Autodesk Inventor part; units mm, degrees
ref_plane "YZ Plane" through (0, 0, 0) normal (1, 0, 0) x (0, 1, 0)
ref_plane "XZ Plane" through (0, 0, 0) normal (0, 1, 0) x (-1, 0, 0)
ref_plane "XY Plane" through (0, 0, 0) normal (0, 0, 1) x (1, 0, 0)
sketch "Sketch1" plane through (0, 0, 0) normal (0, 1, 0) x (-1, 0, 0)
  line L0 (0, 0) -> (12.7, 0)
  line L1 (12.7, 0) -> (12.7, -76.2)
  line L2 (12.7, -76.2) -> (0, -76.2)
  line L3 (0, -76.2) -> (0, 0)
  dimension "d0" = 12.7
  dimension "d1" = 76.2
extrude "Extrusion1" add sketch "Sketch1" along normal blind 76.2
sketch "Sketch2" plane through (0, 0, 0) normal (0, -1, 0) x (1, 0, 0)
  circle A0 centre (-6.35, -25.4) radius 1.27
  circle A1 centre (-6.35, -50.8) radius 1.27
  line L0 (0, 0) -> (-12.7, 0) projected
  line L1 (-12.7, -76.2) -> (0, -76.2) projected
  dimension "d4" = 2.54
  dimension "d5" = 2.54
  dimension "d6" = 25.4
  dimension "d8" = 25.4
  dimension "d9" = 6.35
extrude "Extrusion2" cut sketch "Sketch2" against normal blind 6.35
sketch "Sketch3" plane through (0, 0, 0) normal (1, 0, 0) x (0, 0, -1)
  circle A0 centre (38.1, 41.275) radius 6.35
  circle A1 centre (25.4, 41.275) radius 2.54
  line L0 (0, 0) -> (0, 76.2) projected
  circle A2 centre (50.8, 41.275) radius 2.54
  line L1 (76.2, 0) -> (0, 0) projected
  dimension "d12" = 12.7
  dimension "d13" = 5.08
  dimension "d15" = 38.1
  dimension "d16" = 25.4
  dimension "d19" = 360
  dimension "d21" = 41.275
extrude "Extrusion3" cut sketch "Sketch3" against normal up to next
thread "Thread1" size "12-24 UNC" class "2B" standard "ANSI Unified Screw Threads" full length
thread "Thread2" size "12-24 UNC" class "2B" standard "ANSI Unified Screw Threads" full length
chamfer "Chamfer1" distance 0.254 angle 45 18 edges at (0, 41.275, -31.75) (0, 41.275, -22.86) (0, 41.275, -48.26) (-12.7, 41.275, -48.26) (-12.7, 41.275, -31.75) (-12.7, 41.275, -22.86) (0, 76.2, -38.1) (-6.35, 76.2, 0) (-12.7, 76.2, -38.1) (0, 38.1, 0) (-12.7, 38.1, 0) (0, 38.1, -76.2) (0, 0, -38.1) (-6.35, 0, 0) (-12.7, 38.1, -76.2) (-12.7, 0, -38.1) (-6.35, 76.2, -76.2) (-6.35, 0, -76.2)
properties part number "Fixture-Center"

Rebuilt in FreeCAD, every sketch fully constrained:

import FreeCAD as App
import Part
import Sketcher
Q = App.Units.Quantity


def edges_at(feature, points):
    """Names of the edges that pass closest to the given points."""
    edges = feature.Shape.Edges
    near = lambda p: min(range(len(edges)), key=lambda i: edges[i].distToShape(Part.Vertex(*p))[0])
    return sorted({f"Edge{near(p) + 1}" for p in points})


def add_polygon(sketch, points):
    """Adds a closed chain of lines whose ends are joined by coincident constraints."""
    first, n = sketch.GeometryCount, len(points)
    for a, b in zip(points, points[1:] + points[:1]):
        sketch.addGeometry(Part.LineSegment(App.Vector(*a, 0), App.Vector(*b, 0)), False)
    for i in range(n):
        sketch.addConstraint(Sketcher.Constraint("Coincident", first + i, 2, first + (i + 1) % n, 1))

doc = App.newDocument("Part")
body = doc.addObject("PartDesign::Body", "Body")

sketch1 = body.newObject("Sketcher::SketchObject", "Sketch")
sketch1.AttachmentSupport = (doc.getObject("XZ_Plane"), [""])
sketch1.MapMode = "FlatFace"
add_polygon(sketch1, [(-13, 0), (0, 0), (0, -76), (-13, -76)])
sketch1.addConstraint(Sketcher.Constraint("Horizontal", 0))
sketch1.addConstraint(Sketcher.Constraint("Vertical", 1))
sketch1.addConstraint(Sketcher.Constraint("Horizontal", 2))
sketch1.addConstraint(Sketcher.Constraint("Vertical", 3))
sketch1.addConstraint(Sketcher.Constraint("Coincident", 0, 2, -1, 1))
sketch1.addConstraint(Sketcher.Constraint("DistanceY", 1, 2, 1, 1, Q("3 in")))
sketch1.addConstraint(Sketcher.Constraint("DistanceX", 0, 1, 0, 2, Q("0.5 in")))
pad1 = body.newObject("PartDesign::Pad", "Pad")
pad1.Profile = sketch1
pad1.Length = Q("3 in")
pad1.Reversed = True

sketch2 = body.newObject("Sketcher::SketchObject", "Sketch001")
sketch2.AttachmentSupport = (doc.getObject("XZ_Plane"), [""])
sketch2.MapMode = "FlatFace"
sketch2.addGeometry(Part.Circle(App.Vector(-6.3, -25.4, 0), App.Vector(0, 0, 1), 1.3), False)
sketch2.addGeometry(Part.Circle(App.Vector(-6.3, -50.8, 0), App.Vector(0, 0, 1), 1.3), False)
sketch2.addConstraint(Sketcher.Constraint("Equal", 0, 1))
sketch2.addConstraint(Sketcher.Constraint("Vertical", 0, 3, 1, 3))
sketch2.addConstraint(Sketcher.Constraint("Diameter", 0, Q("0.1 in")))
sketch2.addConstraint(Sketcher.Constraint("DistanceY", 0, 3, -1, 1, Q("1 in")))
sketch2.addConstraint(Sketcher.Constraint("DistanceY", 1, 3, 0, 3, Q("1 in")))
sketch2.addConstraint(Sketcher.Constraint("DistanceX", 0, 3, -1, 1, Q("0.25 in")))
pocket1 = body.newObject("PartDesign::Pocket", "Pocket")
pocket1.Profile = sketch2
pocket1.Length = Q("0.25 in")

sketch3 = body.newObject("Sketcher::SketchObject", "Sketch002")
sketch3.AttachmentSupport = (doc.getObject("YZ_Plane"), [""])
sketch3.MapMode = "FlatFace"
sketch3.addGeometry(Part.Circle(App.Vector(41.3, -38.1, 0), App.Vector(0, 0, 1), 6.3), False)
sketch3.addGeometry(Part.Circle(App.Vector(41.3, -25.4, 0), App.Vector(0, 0, 1), 2.5), False)
sketch3.addGeometry(Part.Circle(App.Vector(41.3, -50.8, 0), App.Vector(0, 0, 1), 2.5), False)
sketch3.addConstraint(Sketcher.Constraint("Equal", 1, 2))
sketch3.addConstraint(Sketcher.Constraint("Vertical", 0, 3, 1, 3))
sketch3.addConstraint(Sketcher.Constraint("Vertical", 1, 3, 2, 3))
sketch3.addConstraint(Sketcher.Constraint("Diameter", 0, Q("0.5 in")))
sketch3.addConstraint(Sketcher.Constraint("Diameter", 1, Q("0.2 in")))
sketch3.addConstraint(Sketcher.Constraint("DistanceY", 1, 3, -1, 1, Q("1 in")))
sketch3.addConstraint(Sketcher.Constraint("DistanceY", 2, 3, 1, 3, Q("1 in")))
sketch3.addConstraint(Sketcher.Constraint("DistanceY", 0, 3, -1, 1, Q("1.5 in")))
sketch3.addConstraint(Sketcher.Constraint("DistanceX", -1, 1, 0, 3, Q("1.625 in")))
pocket2 = body.newObject("PartDesign::Pocket", "Pocket001")
pocket2.Profile = sketch3
pocket2.Type = "UpToFirst"
doc.recompute()

chamfer = body.newObject("PartDesign::Chamfer", "Chamfer")
chamfer.Base = (pocket2, edges_at(pocket2, [
    (0, 41.275, -31.75),
    (0, 41.275, -22.86),
    (0, 41.275, -48.26),
    (-12.7, 41.275, -48.26),
    (-12.7, 41.275, -31.75),
    (-12.7, 41.275, -22.86),
    (0, 76.2, -38.1),
    (-6.35, 76.2, 0),
    (-12.7, 76.2, -38.1),
    (0, 38.1, 0),
    (-12.7, 38.1, 0),
    (0, 38.1, -76.2),
    (0, 0, -38.1),
    (-6.35, 0, 0),
    (-12.7, 38.1, -76.2),
    (-12.7, 0, -38.1),
    (-6.35, 76.2, -76.2),
    (-6.35, 0, -76.2),
]))
chamfer.Size = Q("0.01 in")

doc.recompute()
